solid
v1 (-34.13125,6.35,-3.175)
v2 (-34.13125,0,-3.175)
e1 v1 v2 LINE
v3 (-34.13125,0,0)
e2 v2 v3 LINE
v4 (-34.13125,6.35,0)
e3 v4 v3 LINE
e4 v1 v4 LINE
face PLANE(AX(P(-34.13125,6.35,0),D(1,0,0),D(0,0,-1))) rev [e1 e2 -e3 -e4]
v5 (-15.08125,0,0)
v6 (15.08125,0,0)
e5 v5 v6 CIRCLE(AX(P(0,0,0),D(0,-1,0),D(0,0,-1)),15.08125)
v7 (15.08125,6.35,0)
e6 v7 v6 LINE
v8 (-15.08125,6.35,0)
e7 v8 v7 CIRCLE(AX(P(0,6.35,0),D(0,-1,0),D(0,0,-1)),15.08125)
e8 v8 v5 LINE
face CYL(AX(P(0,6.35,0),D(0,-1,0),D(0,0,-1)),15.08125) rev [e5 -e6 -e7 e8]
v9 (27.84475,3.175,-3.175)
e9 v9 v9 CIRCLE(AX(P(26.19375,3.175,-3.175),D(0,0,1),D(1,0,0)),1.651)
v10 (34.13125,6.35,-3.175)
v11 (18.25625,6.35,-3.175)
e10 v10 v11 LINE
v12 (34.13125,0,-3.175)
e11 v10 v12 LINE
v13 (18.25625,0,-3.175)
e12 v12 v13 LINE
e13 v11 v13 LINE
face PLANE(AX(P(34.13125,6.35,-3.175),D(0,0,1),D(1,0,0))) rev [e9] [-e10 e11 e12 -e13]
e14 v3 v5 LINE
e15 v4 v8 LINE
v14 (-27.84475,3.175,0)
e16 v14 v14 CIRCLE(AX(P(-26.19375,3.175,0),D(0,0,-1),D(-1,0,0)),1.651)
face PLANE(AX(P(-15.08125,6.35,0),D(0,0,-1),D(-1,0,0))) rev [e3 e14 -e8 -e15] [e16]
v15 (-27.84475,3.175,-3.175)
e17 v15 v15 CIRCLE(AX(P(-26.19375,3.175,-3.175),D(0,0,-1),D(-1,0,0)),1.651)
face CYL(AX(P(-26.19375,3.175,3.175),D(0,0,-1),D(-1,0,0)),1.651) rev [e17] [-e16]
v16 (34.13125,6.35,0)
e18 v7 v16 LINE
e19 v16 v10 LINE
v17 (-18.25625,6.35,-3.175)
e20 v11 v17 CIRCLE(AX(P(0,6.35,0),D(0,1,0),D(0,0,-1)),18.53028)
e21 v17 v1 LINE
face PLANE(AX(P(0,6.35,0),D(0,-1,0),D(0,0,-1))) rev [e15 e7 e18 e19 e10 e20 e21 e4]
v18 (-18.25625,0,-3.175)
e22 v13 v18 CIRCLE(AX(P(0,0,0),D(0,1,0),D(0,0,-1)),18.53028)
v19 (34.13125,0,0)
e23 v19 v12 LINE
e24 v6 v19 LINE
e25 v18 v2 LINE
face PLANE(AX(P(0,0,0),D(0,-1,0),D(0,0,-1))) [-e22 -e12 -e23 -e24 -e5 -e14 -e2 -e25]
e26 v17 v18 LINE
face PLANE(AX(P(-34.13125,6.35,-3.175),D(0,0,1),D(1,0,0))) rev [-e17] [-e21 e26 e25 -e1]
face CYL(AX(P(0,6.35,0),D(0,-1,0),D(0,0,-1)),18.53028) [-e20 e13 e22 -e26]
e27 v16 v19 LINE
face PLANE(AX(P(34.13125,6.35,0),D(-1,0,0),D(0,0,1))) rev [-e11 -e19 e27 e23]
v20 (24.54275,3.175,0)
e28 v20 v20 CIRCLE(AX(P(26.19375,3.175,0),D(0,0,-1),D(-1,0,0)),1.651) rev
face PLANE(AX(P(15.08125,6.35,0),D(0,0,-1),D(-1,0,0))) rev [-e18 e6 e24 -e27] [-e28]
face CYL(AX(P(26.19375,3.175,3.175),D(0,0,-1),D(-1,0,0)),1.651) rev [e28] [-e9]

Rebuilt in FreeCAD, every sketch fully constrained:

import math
import FreeCAD as App
import Part
import Sketcher

V = App.Vector
Q = App.Units.Quantity

doc = App.newDocument("Part")
body = doc.addObject("PartDesign::Body", "Body")

# Sketch on XZ plane
sketch1 = body.newObject("Sketcher::SketchObject", "Sketch")
sketch1.AttachmentSupport = (doc.getObject("XZ_Plane"), [""])
sketch1.MapMode = "FlatFace"
sketch1.addGeometry([
    Part.LineSegment(V(-34.1, 0, 0), V(-15.1, 0, 0)),  # 0
    Part.ArcOfCircle(Part.Circle(V(0, 0, 0), V(0, 0, 1), 15.1), math.radians(180), math.radians(360)),  # 1
    Part.LineSegment(V(15.1, 0, 0), V(34.1, 0, 0)),  # 2
    Part.LineSegment(V(34.1, 0, 0), V(34.1, -3.2, 0)),  # 3
    Part.LineSegment(V(34.1, -3.2, 0), V(18.3, -3.2, 0)),  # 4
    Part.ArcOfCircle(Part.Circle(V(0, 0, 0), V(0, 0, 1), 18.5), math.radians(-170), math.radians(-10)),  # 5
    Part.LineSegment(V(-18.3, -3.2, 0), V(-34.1, -3.2, 0)),  # 6
    Part.LineSegment(V(-34.1, -3.2, 0), V(-34.1, 0, 0)),  # 7
], False)
sketch1.addConstraint([
    Sketcher.Constraint("Coincident", 0, 2, 1, 1),
    Sketcher.Constraint("Coincident", 1, 2, 2, 1),
    Sketcher.Constraint("Coincident", 2, 2, 3, 1),
    Sketcher.Constraint("Coincident", 3, 2, 4, 1),
    Sketcher.Constraint("Coincident", 4, 2, 5, 2),
    Sketcher.Constraint("Coincident", 5, 1, 6, 1),
    Sketcher.Constraint("Coincident", 6, 2, 7, 1),
    Sketcher.Constraint("Coincident", 7, 2, 0, 1),
    Sketcher.Constraint("Horizontal", 0),
    Sketcher.Constraint("Horizontal", 2),
    Sketcher.Constraint("Vertical", 3),
    Sketcher.Constraint("Horizontal", 4),
    Sketcher.Constraint("Horizontal", 6),
    Sketcher.Constraint("Vertical", 7),
    Sketcher.Constraint("Coincident", 1, 3, -1, 1),
    Sketcher.Constraint("Coincident", 5, 3, -1, 1),
    Sketcher.Constraint("Symmetric", 2, 2, 7, 2, -1, 1),
    Sketcher.Constraint("PointOnObject", 0, 2, -1),
    Sketcher.Constraint("Horizontal", 4, 2, 5, 1),
    Sketcher.Constraint("Radius", 1, Q("0.59375 in")),
    Sketcher.Constraint("DistanceX", 0, 1, 0, 2, Q("0.75 in")),
    Sketcher.Constraint("DistanceX", 4, 2, 4, 1, Q("0.625 in")),
    Sketcher.Constraint("DistanceY", 3, 2, 3, 1, Q("0.125 in")),
])
pad1 = body.newObject("PartDesign::Pad", "Pad")
pad1.Profile = sketch1
pad1.Length = Q("0.25 in")
pad1.Reversed = True

# Sketch on XY plane
sketch2 = body.newObject("Sketcher::SketchObject", "Sketch001")
sketch2.AttachmentSupport = (doc.getObject("XY_Plane"), [""])
sketch2.MapMode = "FlatFace"
sketch2.AttachmentOffset = App.Placement(V(0, 0, -0.125 * 25.4), App.Rotation())
sketch2.addGeometry(Part.Circle(V(-26.2, 3.2, 0), V(0, 0, 1), 1.7), False)
sketch2.addConstraint([
    Sketcher.Constraint("Diameter", 0, Q("0.13 in")),
    Sketcher.Constraint("DistanceX", 0, 3, -1, 1, Q("1.03125 in")),
    Sketcher.Constraint("DistanceY", -1, 1, 0, 3, Q("0.125 in")),
])
pocket1 = body.newObject("PartDesign::Pocket", "Pocket")
pocket1.Profile = sketch2
pocket1.Length = Q("0.25 in")
pocket1.Reversed = True
doc.recompute()

mirrored = body.newObject("PartDesign::Mirrored", "Mirrored")
mirrored.Originals = [pocket1]
mirrored.MirrorPlane = (doc.getObject("YZ_Plane"), [""])
body.Tip = mirrored

doc.recompute()
